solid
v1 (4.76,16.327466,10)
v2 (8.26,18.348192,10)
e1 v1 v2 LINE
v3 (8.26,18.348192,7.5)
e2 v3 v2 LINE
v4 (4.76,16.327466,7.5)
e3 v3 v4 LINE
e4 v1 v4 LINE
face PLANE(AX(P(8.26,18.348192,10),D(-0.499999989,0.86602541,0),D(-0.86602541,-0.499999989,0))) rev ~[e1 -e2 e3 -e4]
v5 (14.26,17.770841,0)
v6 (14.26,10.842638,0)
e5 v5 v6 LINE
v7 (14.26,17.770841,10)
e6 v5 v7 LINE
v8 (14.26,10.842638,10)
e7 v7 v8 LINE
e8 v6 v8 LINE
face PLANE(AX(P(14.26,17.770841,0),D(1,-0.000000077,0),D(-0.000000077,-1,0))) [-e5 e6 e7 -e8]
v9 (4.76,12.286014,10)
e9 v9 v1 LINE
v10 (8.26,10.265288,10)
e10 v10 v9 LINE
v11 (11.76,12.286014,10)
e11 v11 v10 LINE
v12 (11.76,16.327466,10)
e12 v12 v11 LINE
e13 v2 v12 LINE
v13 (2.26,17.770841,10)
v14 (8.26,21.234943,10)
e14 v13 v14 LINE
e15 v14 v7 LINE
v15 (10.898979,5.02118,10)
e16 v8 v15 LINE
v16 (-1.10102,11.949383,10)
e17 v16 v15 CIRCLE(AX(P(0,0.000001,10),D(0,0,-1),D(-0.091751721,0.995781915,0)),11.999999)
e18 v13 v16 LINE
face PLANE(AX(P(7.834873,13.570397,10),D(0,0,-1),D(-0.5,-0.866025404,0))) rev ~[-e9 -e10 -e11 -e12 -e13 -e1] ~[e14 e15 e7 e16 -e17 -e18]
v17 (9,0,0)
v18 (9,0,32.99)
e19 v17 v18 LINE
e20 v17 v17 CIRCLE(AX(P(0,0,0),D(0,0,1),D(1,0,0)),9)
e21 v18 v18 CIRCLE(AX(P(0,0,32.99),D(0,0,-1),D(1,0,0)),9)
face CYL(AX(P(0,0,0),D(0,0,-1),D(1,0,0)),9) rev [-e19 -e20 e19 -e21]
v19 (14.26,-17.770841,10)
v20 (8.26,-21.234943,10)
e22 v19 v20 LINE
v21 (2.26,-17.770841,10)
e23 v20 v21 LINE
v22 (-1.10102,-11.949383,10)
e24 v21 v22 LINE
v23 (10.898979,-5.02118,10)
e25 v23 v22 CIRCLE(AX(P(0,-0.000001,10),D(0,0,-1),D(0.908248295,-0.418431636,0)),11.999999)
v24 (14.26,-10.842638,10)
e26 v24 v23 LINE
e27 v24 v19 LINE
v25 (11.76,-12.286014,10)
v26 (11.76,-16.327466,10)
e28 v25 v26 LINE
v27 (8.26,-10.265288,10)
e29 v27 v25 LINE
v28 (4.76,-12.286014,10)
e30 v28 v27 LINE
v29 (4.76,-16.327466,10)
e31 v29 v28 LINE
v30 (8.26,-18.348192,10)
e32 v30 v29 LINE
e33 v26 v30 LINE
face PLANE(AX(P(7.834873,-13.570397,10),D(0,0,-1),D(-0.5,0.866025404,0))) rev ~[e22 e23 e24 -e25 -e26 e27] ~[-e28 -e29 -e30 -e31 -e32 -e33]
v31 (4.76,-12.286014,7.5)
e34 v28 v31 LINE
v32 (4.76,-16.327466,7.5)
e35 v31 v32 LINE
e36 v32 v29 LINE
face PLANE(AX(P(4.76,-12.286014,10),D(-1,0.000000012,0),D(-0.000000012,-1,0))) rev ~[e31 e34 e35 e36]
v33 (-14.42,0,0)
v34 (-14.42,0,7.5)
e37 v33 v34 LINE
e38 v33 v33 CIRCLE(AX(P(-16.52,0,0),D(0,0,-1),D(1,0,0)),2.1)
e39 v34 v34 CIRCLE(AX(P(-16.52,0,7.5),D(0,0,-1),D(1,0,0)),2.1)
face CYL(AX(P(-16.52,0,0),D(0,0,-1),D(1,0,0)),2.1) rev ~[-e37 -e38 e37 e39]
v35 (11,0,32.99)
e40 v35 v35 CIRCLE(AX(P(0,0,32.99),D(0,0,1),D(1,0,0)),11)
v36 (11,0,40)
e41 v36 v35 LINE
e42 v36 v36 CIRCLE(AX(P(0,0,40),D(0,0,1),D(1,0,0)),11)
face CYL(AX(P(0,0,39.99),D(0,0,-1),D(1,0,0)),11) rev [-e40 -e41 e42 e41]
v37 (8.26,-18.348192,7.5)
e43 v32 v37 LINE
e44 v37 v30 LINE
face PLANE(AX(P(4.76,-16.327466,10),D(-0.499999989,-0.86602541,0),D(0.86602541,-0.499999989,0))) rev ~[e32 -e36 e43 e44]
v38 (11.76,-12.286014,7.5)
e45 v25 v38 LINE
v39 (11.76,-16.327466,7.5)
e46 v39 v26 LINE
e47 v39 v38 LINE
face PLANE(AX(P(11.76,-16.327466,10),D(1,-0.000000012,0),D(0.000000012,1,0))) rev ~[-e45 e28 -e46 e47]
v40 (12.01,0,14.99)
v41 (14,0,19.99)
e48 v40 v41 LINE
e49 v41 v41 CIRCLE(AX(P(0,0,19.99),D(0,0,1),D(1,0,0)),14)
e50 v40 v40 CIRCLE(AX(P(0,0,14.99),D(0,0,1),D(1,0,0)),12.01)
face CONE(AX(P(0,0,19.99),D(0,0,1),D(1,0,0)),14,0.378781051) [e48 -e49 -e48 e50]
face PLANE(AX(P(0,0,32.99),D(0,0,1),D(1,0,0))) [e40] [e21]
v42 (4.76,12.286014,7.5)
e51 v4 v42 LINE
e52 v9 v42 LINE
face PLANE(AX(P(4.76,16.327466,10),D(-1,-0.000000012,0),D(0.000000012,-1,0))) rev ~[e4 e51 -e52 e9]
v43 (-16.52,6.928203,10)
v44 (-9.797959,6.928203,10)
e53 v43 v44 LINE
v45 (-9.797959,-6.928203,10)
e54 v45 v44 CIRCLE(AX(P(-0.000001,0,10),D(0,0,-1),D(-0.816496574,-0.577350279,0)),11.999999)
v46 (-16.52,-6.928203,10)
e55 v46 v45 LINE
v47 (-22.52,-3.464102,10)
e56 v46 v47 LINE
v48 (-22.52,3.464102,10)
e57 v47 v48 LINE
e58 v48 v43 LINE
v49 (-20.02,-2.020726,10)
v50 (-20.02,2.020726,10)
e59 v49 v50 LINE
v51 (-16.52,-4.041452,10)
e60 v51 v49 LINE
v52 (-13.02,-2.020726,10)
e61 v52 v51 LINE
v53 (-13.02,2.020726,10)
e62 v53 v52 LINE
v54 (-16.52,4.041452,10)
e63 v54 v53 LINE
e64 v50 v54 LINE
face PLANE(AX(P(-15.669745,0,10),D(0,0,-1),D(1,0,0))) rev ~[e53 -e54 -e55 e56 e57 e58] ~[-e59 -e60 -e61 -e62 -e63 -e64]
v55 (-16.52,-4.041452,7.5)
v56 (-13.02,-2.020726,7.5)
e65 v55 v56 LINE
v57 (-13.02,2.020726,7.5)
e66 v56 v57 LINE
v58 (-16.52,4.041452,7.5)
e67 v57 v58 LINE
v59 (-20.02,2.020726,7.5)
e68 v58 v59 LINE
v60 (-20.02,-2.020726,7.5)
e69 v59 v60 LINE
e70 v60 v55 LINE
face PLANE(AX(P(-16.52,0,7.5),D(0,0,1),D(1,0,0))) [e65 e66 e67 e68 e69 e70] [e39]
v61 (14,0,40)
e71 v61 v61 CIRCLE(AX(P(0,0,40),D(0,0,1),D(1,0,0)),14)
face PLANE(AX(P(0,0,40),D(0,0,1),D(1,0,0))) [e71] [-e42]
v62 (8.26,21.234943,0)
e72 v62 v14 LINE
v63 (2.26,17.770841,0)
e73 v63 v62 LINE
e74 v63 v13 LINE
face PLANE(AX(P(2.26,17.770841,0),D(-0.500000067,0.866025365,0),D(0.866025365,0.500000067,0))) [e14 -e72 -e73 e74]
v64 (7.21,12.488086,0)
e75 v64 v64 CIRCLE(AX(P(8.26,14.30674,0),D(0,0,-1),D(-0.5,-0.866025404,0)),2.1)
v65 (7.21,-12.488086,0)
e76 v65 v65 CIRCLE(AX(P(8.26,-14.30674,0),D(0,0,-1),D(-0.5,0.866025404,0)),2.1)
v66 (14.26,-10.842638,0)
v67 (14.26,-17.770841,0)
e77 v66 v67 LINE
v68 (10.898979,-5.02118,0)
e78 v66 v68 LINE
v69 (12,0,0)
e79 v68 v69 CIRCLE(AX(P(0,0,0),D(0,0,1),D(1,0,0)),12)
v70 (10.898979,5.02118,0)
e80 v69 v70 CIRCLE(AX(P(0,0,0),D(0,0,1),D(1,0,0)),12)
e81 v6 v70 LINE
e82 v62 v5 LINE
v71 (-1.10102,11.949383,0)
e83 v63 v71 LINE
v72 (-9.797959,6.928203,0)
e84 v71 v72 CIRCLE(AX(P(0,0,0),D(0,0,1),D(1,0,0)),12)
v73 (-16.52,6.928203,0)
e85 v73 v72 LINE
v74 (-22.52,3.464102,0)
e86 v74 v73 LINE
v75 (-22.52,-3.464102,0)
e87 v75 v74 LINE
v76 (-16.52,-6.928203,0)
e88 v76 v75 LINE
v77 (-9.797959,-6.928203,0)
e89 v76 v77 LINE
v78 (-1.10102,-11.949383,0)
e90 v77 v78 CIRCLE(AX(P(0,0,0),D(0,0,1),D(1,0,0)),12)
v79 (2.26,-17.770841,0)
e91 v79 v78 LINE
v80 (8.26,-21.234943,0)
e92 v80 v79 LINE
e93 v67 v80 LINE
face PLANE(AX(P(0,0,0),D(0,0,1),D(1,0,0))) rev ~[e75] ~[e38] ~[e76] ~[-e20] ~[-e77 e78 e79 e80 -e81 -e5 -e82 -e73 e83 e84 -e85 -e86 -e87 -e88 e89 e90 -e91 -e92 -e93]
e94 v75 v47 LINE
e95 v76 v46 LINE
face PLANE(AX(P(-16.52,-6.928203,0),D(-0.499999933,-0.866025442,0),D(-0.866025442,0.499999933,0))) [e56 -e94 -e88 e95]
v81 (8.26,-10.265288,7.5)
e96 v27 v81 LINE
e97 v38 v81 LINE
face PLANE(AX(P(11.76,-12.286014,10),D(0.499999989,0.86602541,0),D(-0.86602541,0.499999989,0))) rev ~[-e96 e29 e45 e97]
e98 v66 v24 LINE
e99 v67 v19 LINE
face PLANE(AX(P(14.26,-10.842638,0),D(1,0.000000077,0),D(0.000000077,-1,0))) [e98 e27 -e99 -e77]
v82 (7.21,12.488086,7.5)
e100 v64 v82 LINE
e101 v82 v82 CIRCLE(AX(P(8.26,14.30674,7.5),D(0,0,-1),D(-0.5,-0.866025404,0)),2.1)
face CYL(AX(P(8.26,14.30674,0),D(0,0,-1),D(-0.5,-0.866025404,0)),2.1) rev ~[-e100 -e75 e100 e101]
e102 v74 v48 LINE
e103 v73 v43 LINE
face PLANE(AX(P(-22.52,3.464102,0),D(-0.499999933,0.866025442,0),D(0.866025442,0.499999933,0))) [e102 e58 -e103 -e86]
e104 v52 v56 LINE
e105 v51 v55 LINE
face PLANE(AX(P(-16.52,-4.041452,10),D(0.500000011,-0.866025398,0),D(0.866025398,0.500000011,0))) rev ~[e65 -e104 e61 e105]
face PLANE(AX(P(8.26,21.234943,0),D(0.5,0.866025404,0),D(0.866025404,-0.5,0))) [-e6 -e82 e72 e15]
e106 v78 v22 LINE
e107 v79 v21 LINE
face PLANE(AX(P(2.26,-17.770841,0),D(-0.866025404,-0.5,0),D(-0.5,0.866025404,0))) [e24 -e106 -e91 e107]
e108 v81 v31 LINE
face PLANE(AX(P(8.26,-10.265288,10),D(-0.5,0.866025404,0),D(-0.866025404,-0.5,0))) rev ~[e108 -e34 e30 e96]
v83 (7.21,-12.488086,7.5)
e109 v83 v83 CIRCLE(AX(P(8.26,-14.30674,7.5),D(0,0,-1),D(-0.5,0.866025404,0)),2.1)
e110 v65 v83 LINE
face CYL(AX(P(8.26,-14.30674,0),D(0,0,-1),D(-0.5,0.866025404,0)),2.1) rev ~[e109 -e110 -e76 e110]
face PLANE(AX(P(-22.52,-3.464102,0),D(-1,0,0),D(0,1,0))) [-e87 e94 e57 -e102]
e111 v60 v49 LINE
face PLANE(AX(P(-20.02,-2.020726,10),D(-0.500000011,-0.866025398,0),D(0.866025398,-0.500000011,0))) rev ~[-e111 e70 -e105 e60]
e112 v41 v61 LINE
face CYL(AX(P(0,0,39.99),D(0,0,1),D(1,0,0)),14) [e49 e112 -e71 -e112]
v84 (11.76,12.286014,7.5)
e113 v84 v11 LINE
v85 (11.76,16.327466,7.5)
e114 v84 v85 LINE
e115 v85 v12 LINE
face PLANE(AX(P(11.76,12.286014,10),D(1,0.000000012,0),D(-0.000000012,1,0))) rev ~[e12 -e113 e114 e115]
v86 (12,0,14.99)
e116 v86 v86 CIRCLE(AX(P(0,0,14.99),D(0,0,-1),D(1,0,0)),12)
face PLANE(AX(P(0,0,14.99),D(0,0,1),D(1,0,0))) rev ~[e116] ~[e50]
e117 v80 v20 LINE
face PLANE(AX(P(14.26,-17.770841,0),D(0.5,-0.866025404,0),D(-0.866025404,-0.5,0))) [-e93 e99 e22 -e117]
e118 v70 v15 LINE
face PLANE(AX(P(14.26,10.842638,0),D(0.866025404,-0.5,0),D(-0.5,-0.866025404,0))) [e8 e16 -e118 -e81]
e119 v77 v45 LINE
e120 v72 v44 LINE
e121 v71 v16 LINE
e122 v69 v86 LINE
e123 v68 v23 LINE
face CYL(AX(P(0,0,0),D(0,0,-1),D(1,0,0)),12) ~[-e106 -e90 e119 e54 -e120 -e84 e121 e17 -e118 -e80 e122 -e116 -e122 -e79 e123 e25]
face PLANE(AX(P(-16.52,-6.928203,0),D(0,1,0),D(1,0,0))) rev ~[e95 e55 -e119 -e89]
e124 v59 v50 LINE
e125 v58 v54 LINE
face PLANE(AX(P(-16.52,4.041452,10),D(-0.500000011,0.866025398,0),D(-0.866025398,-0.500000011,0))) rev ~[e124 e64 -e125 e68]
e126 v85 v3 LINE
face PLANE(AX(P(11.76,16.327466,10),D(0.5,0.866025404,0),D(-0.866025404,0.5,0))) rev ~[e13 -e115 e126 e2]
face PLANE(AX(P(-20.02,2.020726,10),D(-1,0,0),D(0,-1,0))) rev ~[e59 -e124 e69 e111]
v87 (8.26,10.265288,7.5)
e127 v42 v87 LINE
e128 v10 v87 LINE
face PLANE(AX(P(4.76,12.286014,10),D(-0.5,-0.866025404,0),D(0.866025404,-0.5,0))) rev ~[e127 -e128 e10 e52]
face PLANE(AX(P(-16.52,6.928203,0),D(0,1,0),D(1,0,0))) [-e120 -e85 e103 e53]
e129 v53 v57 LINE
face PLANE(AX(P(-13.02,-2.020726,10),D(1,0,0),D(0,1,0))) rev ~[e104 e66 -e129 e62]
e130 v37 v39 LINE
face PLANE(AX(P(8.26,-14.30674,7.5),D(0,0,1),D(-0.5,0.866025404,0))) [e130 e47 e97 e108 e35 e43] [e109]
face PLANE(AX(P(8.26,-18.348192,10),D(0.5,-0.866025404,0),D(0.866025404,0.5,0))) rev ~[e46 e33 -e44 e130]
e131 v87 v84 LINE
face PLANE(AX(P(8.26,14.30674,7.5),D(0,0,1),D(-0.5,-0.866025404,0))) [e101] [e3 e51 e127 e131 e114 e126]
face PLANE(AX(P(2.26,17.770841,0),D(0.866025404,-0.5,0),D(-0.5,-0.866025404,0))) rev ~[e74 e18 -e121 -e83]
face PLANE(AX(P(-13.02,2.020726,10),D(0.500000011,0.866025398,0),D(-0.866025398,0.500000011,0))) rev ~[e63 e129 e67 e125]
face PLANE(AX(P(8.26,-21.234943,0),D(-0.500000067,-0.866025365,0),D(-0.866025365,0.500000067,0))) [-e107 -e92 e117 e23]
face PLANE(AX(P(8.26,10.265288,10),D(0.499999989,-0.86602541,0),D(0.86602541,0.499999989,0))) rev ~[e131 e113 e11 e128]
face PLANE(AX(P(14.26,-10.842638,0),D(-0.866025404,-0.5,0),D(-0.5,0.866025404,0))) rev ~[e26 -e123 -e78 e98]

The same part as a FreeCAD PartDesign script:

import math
import FreeCAD as App
import Part
import Sketcher
Q = App.Units.Quantity


def edges_at(feature, points):
    """Names of the edges that pass closest to the given points."""
    edges = feature.Shape.Edges
    near = lambda p: min(range(len(edges)), key=lambda i: edges[i].distToShape(Part.Vertex(*p))[0])
    return sorted({f"Edge{near(p) + 1}" for p in points})


def add_polygon(sketch, points):
    """Adds a closed chain of lines whose ends are joined by coincident constraints."""
    first, n = sketch.GeometryCount, len(points)
    for a, b in zip(points, points[1:] + points[:1]):
        sketch.addGeometry(Part.LineSegment(App.Vector(*a, 0), App.Vector(*b, 0)), False)
    for i in range(n):
        sketch.addConstraint(Sketcher.Constraint("Coincident", first + i, 2, first + (i + 1) % n, 1))

doc = App.newDocument("Part")
body = doc.addObject("PartDesign::Body", "Body")

sketch1 = doc.addObject("Sketcher::SketchObject", "Sketch")
body.addObject(sketch1)
sketch1.AttachmentSupport = (doc.XY_Plane, [""])
sketch1.MapMode = "FlatFace"
sketch1.addGeometry([
    Part.Circle(App.Vector(0, 0, 0), App.Vector(0, 0, 1), 12),
    Part.Circle(App.Vector(0, 0, 0), App.Vector(0, 0, 1), 9),
], False)
sketch1.addConstraint([
    Sketcher.Constraint("Coincident", 0, 3, -1, 1),
    Sketcher.Constraint("Coincident", 1, 3, -1, 1),
    Sketcher.Constraint("Diameter", 0, 24.0),
    Sketcher.Constraint("Diameter", 1, 18.0),
])
pad1 = doc.addObject("PartDesign::Pad", "Pad")
body.addObject(pad1)
pad1.Profile = sketch1
pad1.Length = 39.99

sketch2 = doc.addObject("Sketcher::SketchObject", "Sketch001")
body.addObject(sketch2)
sketch2.AttachmentSupport = (doc.XY_Plane, [""])
sketch2.MapMode = "FlatFace"
sketch2.AttachmentOffset = App.Placement(App.Vector(0, 0, 39.99), App.Rotation())
sketch2.addGeometry(Part.Circle(App.Vector(0, 0, 0), App.Vector(0, 0, 1), 11), False)
sketch2.addConstraint([
    Sketcher.Constraint("Coincident", 0, 3, -1, 1),
    Sketcher.Constraint("Diameter", 0, 22.0),
])
pocket1 = doc.addObject("PartDesign::Pocket", "Pocket")
body.addObject(pocket1)
pocket1.Profile = sketch2
pocket1.Length = 7

sketch3 = doc.addObject("Sketcher::SketchObject", "Sketch002")
body.addObject(sketch3)
sketch3.AttachmentSupport = (doc.XY_Plane, [""])
sketch3.MapMode = "FlatFace"
sketch3.addGeometry([
    Part.LineSegment(App.Vector(-16.5, -6.9, 0), App.Vector(-22.5, -3.5, 0)),
    Part.LineSegment(App.Vector(-22.5, -3.5, 0), App.Vector(-22.5, 3.5, 0)),
    Part.LineSegment(App.Vector(-22.5, 3.5, 0), App.Vector(-16.5, 6.9, 0)),
    Part.LineSegment(App.Vector(-16.5, 6.9, 0), App.Vector(-9.8, 6.9, 0)),
    Part.ArcOfCircle(Part.Circle(App.Vector(0, 0, 0), App.Vector(0, 0, 1), 12), math.radians(145), math.radians(215)),
    Part.LineSegment(App.Vector(-9.8, -6.9, 0), App.Vector(-16.5, -6.9, 0)),
    Part.Circle(App.Vector(-16.5, 0, 0), App.Vector(0, 0, 1), 2.1),
], False)
sketch3.addConstraint([
    Sketcher.Constraint("Coincident", 0, 2, 1, 1),
    Sketcher.Constraint("Coincident", 1, 2, 2, 1),
    Sketcher.Constraint("Coincident", 2, 2, 3, 1),
    Sketcher.Constraint("Coincident", 3, 2, 4, 1),
    Sketcher.Constraint("Coincident", 4, 2, 5, 1),
    Sketcher.Constraint("Coincident", 5, 2, 0, 1),
    Sketcher.Constraint("Vertical", 1),
    Sketcher.Constraint("Horizontal", 3),
    Sketcher.Constraint("Horizontal", 5),
    Sketcher.Constraint("Coincident", 4, 3, -1, 1),
    Sketcher.Constraint("Symmetric", 2, 2, 5, 2, -1),
    Sketcher.Constraint("PointOnObject", 6, 3, -1),
    Sketcher.Constraint("Vertical", 6, 3, 2, 2),
    Sketcher.Constraint("Equal", 0, 2),
    Sketcher.Constraint("Radius", 4, 11.999999),
    Sketcher.Constraint("Diameter", 6, 4.2),
    Sketcher.Constraint("Angle", 0, Q("150.000004 deg")),
    Sketcher.Constraint("DistanceX", 0, 2, 6, 3, 6.0),
    Sketcher.Constraint("DistanceX", 6, 3, -1, 1, 16.52),
    Sketcher.Constraint("DistanceX", 3, 1, 3, 2, 6.722041),
])
pad2 = doc.addObject("PartDesign::Pad", "Pad001")
body.addObject(pad2)
pad2.Profile = sketch3
pad2.Length = 10
doc.recompute()

polarpattern = doc.addObject("PartDesign::PolarPattern", "PolarPattern")
body.addObject(polarpattern)
polarpattern.Originals = [pad2]
polarpattern.Axis = (doc.Z_Axis, [""])
polarpattern.Angle = 360
polarpattern.Occurrences = 3
body.Tip = polarpattern

sketch4 = doc.addObject("Sketcher::SketchObject", "Sketch003")
body.addObject(sketch4)
sketch4.AttachmentSupport = (doc.XY_Plane, [""])
sketch4.MapMode = "FlatFace"
sketch4.AttachmentOffset = App.Placement(App.Vector(0, 0, 10), App.Rotation())
add_polygon(sketch4, [(-13, 2), (-16.5, 4), (-20, 2), (-20, -2), (-16.5, -4), (-13, -2)])
sketch4.addConstraint([
    Sketcher.Constraint("Vertical", 2),
    Sketcher.Constraint("Vertical", 5),
    Sketcher.Constraint("Symmetric", 0, 2, 3, 2, -1),
    Sketcher.Constraint("Parallel", 0, 3),
    Sketcher.Constraint("Parallel", 1, 4),
    Sketcher.Constraint("Horizontal", 2, 2, 4, 2),
    Sketcher.Constraint("Horizontal", 1, 2, 5, 2),
    Sketcher.Constraint("Angle", 0, Q("149.999999 deg")),
    Sketcher.Constraint("DistanceX", 2, 2, 4, 2, 7.0),
    Sketcher.Constraint("DistanceX", 0, 2, -1, 1, 16.52),
    Sketcher.Constraint("DistanceY", 2, 2, 2, 1, 4.041452),
])
pocket2 = doc.addObject("PartDesign::Pocket", "Pocket001")
body.addObject(pocket2)
pocket2.Profile = sketch4
pocket2.Length = 5
pocket2.Midplane = True
doc.recompute()

polarpattern2 = doc.addObject("PartDesign::PolarPattern", "PolarPattern001")
body.addObject(polarpattern2)
polarpattern2.Originals = [pocket2]
polarpattern2.Axis = (doc.Z_Axis, [""])
polarpattern2.Angle = 360
polarpattern2.Occurrences = 3
body.Tip = polarpattern2

sketch5 = doc.addObject("Sketcher::SketchObject", "Sketch004")
body.addObject(sketch5)
sketch5.AttachmentSupport = (doc.XY_Plane, [""])
sketch5.MapMode = "FlatFace"
sketch5.AttachmentOffset = App.Placement(App.Vector(0, 0, 39.99), App.Rotation())
sketch5.addGeometry([
    Part.Circle(App.Vector(0, 0, 0), App.Vector(0, 0, 1), 14),
    Part.Circle(App.Vector(0, 0, 0), App.Vector(0, 0, 1), 11),
], False)
sketch5.addConstraint([
    Sketcher.Constraint("Coincident", 0, 3, -1, 1),
    Sketcher.Constraint("Coincident", 1, 3, -1, 1),
    Sketcher.Constraint("Diameter", 0, 28.0),
    Sketcher.Constraint("Diameter", 1, 22.0),
])
pad3 = doc.addObject("PartDesign::Pad", "Pad002")
body.addObject(pad3)
pad3.Profile = sketch5
pad3.Type = "TwoLengths"
pad3.Length = 0.01
pad3.Length2 = 25
doc.recompute()

chamfer = doc.addObject("PartDesign::Chamfer", "Chamfer")
body.addObject(chamfer)
chamfer.Base = (pad3, edges_at(pad3, [(-14, 0, 14.99)]))
chamfer.ChamferType = "Two distances"
chamfer.Size = 1.99
chamfer.Size2 = 5

doc.recompute()
